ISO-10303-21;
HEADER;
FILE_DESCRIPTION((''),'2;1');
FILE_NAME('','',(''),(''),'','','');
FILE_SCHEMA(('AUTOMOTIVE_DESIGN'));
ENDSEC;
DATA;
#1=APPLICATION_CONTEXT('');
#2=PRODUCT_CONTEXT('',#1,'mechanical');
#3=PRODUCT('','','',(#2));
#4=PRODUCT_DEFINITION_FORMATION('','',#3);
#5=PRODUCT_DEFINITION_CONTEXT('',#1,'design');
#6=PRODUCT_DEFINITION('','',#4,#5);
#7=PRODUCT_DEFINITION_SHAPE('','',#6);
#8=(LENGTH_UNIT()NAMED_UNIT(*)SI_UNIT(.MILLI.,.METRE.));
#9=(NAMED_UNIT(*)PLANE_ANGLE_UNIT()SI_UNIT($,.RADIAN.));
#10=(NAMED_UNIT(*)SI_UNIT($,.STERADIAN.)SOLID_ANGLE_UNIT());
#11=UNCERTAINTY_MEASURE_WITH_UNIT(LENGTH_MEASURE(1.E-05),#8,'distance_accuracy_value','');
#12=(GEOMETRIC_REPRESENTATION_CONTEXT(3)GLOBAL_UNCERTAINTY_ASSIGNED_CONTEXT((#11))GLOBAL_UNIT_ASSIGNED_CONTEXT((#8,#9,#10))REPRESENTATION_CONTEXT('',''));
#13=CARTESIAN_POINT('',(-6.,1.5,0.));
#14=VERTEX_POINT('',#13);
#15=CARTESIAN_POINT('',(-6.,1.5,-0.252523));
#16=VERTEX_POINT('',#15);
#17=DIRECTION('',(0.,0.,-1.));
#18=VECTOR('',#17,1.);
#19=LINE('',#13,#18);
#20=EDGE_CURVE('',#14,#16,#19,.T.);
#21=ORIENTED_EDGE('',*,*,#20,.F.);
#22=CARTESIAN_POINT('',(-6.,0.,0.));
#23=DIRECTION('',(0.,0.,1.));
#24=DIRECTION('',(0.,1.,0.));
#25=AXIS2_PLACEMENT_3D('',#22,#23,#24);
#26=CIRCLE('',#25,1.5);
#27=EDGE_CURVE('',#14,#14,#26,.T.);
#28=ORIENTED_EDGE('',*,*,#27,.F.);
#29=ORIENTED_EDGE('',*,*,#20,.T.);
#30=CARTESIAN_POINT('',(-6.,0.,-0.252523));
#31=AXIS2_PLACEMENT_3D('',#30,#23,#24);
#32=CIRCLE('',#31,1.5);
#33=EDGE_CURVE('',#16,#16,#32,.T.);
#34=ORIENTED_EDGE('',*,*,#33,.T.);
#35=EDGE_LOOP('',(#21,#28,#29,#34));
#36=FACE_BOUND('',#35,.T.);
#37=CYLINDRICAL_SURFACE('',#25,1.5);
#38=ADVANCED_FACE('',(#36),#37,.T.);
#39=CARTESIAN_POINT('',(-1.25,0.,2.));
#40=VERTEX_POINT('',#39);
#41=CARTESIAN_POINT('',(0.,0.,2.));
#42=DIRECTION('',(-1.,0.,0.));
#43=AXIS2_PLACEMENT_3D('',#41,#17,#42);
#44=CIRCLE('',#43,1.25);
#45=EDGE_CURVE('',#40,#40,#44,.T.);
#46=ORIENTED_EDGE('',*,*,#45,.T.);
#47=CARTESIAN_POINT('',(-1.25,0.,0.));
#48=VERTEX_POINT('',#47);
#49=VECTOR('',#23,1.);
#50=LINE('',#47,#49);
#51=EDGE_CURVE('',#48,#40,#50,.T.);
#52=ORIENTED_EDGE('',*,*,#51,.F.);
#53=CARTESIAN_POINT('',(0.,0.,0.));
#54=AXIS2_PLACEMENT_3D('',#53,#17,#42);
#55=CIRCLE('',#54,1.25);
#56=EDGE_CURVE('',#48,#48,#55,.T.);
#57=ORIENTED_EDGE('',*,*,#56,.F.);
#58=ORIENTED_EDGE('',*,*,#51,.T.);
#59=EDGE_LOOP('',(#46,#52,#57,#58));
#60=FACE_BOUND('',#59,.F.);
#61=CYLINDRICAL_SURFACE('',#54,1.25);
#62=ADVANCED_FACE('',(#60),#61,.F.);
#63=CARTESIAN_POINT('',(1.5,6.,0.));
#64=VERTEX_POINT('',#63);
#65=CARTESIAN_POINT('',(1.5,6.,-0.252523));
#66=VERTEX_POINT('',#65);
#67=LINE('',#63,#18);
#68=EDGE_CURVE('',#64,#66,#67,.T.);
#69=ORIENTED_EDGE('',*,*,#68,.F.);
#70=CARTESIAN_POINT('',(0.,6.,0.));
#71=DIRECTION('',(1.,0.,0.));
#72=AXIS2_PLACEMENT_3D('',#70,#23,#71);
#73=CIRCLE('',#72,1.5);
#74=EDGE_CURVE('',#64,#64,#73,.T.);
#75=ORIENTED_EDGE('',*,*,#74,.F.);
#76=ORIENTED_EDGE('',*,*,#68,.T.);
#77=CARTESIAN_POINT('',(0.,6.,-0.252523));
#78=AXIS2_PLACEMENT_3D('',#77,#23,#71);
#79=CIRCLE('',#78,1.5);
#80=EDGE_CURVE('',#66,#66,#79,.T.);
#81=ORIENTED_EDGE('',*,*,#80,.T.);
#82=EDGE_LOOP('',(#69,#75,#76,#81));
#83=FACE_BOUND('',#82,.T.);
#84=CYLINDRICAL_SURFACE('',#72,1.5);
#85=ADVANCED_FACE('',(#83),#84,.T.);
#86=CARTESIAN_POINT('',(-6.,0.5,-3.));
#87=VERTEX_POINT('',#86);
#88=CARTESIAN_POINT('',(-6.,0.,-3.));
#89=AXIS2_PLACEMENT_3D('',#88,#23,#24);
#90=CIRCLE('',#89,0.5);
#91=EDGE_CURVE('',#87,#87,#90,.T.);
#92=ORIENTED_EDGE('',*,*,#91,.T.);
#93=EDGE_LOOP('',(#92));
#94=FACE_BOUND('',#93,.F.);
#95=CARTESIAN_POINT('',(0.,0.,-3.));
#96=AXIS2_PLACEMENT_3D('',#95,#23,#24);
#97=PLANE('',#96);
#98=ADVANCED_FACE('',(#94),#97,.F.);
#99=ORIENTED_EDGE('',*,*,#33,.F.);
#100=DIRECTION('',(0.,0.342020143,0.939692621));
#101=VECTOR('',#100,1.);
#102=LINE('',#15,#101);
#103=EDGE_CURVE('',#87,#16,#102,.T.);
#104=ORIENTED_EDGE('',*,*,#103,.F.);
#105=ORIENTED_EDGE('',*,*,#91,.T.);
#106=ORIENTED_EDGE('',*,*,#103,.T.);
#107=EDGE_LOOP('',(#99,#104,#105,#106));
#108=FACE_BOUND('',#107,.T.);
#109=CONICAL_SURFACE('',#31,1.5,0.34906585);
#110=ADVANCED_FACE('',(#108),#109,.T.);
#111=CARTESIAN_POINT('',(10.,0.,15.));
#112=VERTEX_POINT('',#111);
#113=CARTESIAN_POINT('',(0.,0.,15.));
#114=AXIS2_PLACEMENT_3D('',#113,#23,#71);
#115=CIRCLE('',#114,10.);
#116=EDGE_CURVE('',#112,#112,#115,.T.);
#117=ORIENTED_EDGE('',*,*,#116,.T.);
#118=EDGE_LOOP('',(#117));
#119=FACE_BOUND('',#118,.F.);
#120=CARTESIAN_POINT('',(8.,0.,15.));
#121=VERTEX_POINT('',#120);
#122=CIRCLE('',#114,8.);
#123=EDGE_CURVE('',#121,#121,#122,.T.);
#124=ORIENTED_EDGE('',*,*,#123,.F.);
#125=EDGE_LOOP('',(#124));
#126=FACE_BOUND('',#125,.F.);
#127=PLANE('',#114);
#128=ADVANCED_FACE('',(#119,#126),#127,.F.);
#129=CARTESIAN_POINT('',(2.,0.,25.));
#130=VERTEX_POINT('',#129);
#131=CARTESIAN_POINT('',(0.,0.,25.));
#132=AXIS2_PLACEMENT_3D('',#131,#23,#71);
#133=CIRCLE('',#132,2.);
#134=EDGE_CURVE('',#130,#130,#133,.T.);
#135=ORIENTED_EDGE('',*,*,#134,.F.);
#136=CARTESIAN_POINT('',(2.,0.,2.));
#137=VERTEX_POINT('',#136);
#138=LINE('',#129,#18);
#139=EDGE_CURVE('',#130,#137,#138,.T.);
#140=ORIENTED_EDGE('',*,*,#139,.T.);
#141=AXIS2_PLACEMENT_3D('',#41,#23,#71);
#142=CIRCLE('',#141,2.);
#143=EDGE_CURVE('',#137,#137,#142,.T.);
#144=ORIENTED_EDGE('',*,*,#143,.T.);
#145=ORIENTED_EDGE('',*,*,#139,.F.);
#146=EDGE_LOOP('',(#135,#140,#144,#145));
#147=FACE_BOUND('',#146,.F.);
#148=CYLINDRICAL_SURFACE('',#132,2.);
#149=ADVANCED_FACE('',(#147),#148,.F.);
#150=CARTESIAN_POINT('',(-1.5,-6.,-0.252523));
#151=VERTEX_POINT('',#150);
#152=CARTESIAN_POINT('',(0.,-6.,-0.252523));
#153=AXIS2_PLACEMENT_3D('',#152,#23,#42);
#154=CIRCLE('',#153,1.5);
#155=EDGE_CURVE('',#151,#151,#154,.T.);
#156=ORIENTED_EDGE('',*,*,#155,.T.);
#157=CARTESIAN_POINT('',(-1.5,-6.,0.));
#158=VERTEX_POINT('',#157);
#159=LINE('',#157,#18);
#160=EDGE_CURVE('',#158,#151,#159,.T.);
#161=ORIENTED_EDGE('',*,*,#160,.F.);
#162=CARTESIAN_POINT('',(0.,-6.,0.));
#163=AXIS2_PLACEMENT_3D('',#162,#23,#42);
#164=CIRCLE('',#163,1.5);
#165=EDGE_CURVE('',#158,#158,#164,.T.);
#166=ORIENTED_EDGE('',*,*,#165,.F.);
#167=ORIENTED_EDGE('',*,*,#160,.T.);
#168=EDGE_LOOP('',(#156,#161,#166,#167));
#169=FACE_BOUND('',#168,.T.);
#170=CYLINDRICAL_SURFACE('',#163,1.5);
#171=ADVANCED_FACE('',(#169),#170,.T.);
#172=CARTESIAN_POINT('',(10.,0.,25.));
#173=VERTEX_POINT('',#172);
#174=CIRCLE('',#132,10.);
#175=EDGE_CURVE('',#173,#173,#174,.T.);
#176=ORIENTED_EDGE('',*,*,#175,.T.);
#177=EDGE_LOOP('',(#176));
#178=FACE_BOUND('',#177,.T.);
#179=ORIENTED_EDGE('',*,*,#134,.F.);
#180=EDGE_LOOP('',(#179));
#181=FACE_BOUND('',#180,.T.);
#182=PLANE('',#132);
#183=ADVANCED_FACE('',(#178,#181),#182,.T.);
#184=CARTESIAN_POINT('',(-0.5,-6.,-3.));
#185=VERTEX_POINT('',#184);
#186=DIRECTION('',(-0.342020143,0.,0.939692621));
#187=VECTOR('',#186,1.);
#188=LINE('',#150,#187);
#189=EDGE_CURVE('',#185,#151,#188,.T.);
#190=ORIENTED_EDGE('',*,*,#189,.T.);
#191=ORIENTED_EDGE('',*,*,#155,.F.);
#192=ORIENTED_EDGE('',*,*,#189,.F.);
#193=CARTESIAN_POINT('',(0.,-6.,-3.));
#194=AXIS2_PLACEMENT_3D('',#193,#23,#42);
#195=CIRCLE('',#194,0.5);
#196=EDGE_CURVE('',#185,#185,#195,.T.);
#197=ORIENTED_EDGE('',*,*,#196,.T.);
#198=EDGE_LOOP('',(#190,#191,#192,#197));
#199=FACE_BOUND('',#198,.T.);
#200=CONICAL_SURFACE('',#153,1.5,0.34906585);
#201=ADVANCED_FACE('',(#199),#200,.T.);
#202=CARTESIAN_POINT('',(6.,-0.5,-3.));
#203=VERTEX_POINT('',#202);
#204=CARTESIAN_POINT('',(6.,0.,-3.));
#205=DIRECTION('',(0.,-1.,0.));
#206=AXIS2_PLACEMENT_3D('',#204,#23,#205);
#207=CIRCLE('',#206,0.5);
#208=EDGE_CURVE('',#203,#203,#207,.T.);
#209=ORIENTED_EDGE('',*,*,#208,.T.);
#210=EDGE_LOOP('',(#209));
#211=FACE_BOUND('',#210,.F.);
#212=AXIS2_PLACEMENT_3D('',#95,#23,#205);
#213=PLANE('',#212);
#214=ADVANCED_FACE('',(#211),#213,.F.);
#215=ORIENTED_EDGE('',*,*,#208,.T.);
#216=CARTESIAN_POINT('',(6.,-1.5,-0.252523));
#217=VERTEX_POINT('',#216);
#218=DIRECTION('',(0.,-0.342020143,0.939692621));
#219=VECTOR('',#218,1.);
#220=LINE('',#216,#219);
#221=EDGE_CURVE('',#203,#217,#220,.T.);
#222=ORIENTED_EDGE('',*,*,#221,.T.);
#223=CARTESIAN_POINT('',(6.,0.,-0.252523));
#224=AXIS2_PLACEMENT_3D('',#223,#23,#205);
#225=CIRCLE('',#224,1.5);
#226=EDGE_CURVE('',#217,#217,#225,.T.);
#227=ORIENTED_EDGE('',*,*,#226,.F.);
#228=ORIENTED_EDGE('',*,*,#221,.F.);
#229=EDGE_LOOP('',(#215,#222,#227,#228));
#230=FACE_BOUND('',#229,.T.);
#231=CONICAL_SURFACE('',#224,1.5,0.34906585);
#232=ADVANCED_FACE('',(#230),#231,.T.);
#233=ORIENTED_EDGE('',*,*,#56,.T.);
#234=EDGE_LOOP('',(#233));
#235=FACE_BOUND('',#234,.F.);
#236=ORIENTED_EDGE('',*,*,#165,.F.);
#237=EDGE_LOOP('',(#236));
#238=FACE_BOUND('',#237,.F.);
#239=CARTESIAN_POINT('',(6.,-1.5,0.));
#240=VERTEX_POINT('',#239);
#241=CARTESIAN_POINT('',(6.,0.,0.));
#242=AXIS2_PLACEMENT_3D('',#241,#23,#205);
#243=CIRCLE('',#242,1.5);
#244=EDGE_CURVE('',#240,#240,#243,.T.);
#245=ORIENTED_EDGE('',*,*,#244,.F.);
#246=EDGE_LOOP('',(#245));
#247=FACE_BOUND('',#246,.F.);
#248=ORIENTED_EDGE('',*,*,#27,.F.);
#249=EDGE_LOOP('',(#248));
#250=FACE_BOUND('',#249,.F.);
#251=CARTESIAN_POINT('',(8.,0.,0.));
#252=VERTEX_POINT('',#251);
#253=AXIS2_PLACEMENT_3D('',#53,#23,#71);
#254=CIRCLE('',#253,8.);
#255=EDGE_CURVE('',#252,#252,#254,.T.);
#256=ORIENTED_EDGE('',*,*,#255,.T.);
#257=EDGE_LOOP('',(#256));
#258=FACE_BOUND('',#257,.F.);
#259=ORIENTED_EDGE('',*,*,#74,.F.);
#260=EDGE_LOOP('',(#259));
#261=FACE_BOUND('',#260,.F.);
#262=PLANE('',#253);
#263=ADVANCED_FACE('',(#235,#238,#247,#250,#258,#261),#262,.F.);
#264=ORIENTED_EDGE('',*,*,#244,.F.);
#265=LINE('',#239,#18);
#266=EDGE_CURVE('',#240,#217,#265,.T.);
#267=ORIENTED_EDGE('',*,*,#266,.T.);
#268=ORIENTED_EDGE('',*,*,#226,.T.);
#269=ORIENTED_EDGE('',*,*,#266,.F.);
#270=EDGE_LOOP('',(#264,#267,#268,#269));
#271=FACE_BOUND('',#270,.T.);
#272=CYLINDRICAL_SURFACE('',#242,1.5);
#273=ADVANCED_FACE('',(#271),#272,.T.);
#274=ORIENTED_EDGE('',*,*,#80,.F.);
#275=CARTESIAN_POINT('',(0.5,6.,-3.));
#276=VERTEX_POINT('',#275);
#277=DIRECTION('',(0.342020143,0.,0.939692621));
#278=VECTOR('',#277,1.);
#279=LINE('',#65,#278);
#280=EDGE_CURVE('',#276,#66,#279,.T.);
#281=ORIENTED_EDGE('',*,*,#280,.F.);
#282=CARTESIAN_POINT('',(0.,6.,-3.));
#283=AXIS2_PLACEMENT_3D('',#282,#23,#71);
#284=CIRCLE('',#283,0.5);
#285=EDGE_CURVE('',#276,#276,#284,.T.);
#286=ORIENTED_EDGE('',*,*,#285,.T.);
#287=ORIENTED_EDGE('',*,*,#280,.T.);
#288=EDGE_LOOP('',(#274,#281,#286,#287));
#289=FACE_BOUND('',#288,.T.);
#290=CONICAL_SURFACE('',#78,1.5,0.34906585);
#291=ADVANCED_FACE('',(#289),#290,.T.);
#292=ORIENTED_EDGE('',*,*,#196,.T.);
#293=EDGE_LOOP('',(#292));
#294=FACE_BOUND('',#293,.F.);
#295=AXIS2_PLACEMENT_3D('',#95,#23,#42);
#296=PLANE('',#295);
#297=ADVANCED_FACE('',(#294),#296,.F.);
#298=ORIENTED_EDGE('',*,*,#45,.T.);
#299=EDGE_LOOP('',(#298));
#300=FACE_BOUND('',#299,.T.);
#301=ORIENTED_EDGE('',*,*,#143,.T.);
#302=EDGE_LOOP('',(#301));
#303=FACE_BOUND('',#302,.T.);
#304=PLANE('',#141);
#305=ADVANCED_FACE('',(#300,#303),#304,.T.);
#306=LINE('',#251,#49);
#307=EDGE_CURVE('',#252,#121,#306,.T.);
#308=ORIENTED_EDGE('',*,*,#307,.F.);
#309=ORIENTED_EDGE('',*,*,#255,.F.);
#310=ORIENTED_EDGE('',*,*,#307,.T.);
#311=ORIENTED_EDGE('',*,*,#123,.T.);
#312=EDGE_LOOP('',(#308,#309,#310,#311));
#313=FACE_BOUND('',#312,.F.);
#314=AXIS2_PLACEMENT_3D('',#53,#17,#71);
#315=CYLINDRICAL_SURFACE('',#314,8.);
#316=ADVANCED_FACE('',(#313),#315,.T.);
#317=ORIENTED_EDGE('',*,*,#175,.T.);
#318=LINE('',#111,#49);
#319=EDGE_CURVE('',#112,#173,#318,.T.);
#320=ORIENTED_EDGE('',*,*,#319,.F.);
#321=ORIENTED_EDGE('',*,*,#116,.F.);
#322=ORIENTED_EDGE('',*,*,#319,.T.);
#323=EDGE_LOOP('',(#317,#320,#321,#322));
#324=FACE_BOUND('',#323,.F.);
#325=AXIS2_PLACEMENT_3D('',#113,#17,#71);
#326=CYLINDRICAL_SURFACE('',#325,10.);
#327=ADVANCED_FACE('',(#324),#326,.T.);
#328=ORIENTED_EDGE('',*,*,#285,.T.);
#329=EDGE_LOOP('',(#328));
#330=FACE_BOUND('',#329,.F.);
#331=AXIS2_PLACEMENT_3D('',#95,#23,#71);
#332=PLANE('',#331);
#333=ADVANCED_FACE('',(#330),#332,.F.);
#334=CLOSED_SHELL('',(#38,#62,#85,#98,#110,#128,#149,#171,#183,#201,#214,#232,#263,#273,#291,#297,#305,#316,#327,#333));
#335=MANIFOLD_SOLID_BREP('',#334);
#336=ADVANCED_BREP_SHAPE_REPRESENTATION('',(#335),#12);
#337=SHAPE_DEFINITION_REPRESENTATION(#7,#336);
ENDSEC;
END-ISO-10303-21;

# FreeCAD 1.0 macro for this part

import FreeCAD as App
import Part
import Sketcher


def edges_at(feature, points):
    """Names of the edges that pass closest to the given points."""
    edges = feature.Shape.Edges
    near = lambda p: min(range(len(edges)), key=lambda i: edges[i].distToShape(Part.Vertex(*p))[0])
    return sorted({f"Edge{near(p) + 1}" for p in points})

doc = App.newDocument("Part")
body = doc.addObject("PartDesign::Body", "Body")

# Sketch on XY plane
sketch1 = body.newObject("Sketcher::SketchObject", "Sketch")
sketch1.AttachmentSupport = (doc.getObject("XY_Plane"), [""])
sketch1.MapMode = "FlatFace"
sketch1.addGeometry(Part.Circle(App.Vector(0, 0, 0), App.Vector(0, 0, 1), 8), False)
sketch1.addConstraint(Sketcher.Constraint("Coincident", 0, 3, -1, 1))
sketch1.addConstraint(Sketcher.Constraint("Diameter", 0, 16.0))
pad1 = body.newObject("PartDesign::Pad", "Pad")
pad1.Profile = sketch1
pad1.Length = 15

# Sketch on XY plane
sketch2 = body.newObject("Sketcher::SketchObject", "Sketch001")
sketch2.AttachmentSupport = (doc.getObject("XY_Plane"), [""])
sketch2.MapMode = "FlatFace"
sketch2.addGeometry(Part.Circle(App.Vector(0, 6, 0), App.Vector(0, 0, 1), 1.5), False)
sketch2.addConstraint(Sketcher.Constraint("PointOnObject", 0, 3, -2))
sketch2.addConstraint(Sketcher.Constraint("Diameter", 0, 3.0))
sketch2.addConstraint(Sketcher.Constraint("DistanceY", -1, 1, 0, 3, 6.0))
pad2 = body.newObject("PartDesign::Pad", "Pad001")
pad2.Profile = sketch2
pad2.Length = 3
pad2.Reversed = True
doc.recompute()

chamfer = body.newObject("PartDesign::Chamfer", "Chamfer")
chamfer.Base = (pad2, edges_at(pad2, [(-1.5, 6, -3)]))
chamfer.ChamferType = "Distance and Angle"
chamfer.Size = 1
chamfer.Angle = 70
chamfer.FlipDirection = True
doc.recompute()

polarpattern = body.newObject("PartDesign::PolarPattern", "PolarPattern")
polarpattern.Originals = [pad2, chamfer]
polarpattern.Axis = (doc.getObject("Z_Axis"), [""])
polarpattern.Angle = 360
polarpattern.Occurrences = 4
body.Tip = polarpattern

# Sketch on XY plane
sketch3 = body.newObject("Sketcher::SketchObject", "Sketch002")
sketch3.AttachmentSupport = (doc.getObject("XY_Plane"), [""])
sketch3.MapMode = "FlatFace"
sketch3.AttachmentOffset = App.Placement(App.Vector(0, 0, 15), App.Rotation())
sketch3.addGeometry(Part.Circle(App.Vector(0, 0, 0), App.Vector(0, 0, 1), 10), False)
sketch3.addConstraint(Sketcher.Constraint("Coincident", 0, 3, -1, 1))
sketch3.addConstraint(Sketcher.Constraint("Diameter", 0, 20.0))
pad3 = body.newObject("PartDesign::Pad", "Pad002")
pad3.Profile = sketch3
pad3.Length = 10

# Sketch on XY plane
sketch4 = body.newObject("Sketcher::SketchObject", "Sketch003")
sketch4.AttachmentSupport = (doc.getObject("XY_Plane"), [""])
sketch4.MapMode = "FlatFace"
sketch4.addGeometry(Part.Circle(App.Vector(0, 0, 0), App.Vector(0, 0, 1), 1.25), False)
sketch4.addConstraint(Sketcher.Constraint("Coincident", 0, 3, -1, 1))
sketch4.addConstraint(Sketcher.Constraint("Diameter", 0, 2.5))
pocket1 = body.newObject("PartDesign::Pocket", "Pocket")
pocket1.Profile = sketch4
pocket1.Type = "ThroughAll"
pocket1.Reversed = True

# Sketch on XY plane
sketch5 = body.newObject("Sketcher::SketchObject", "Sketch004")
sketch5.AttachmentSupport = (doc.getObject("XY_Plane"), [""])
sketch5.MapMode = "FlatFace"
sketch5.AttachmentOffset = App.Placement(App.Vector(0, 0, 25), App.Rotation())
sketch5.addGeometry(Part.Circle(App.Vector(0, 0, 0), App.Vector(0, 0, 1), 2), False)
sketch5.addConstraint(Sketcher.Constraint("Coincident", 0, 3, -1, 1))
sketch5.addConstraint(Sketcher.Constraint("Diameter", 0, 4.0))
pocket2 = body.newObject("PartDesign::Pocket", "Pocket001")
pocket2.Profile = sketch5
pocket2.Length = 23

doc.recompute()
